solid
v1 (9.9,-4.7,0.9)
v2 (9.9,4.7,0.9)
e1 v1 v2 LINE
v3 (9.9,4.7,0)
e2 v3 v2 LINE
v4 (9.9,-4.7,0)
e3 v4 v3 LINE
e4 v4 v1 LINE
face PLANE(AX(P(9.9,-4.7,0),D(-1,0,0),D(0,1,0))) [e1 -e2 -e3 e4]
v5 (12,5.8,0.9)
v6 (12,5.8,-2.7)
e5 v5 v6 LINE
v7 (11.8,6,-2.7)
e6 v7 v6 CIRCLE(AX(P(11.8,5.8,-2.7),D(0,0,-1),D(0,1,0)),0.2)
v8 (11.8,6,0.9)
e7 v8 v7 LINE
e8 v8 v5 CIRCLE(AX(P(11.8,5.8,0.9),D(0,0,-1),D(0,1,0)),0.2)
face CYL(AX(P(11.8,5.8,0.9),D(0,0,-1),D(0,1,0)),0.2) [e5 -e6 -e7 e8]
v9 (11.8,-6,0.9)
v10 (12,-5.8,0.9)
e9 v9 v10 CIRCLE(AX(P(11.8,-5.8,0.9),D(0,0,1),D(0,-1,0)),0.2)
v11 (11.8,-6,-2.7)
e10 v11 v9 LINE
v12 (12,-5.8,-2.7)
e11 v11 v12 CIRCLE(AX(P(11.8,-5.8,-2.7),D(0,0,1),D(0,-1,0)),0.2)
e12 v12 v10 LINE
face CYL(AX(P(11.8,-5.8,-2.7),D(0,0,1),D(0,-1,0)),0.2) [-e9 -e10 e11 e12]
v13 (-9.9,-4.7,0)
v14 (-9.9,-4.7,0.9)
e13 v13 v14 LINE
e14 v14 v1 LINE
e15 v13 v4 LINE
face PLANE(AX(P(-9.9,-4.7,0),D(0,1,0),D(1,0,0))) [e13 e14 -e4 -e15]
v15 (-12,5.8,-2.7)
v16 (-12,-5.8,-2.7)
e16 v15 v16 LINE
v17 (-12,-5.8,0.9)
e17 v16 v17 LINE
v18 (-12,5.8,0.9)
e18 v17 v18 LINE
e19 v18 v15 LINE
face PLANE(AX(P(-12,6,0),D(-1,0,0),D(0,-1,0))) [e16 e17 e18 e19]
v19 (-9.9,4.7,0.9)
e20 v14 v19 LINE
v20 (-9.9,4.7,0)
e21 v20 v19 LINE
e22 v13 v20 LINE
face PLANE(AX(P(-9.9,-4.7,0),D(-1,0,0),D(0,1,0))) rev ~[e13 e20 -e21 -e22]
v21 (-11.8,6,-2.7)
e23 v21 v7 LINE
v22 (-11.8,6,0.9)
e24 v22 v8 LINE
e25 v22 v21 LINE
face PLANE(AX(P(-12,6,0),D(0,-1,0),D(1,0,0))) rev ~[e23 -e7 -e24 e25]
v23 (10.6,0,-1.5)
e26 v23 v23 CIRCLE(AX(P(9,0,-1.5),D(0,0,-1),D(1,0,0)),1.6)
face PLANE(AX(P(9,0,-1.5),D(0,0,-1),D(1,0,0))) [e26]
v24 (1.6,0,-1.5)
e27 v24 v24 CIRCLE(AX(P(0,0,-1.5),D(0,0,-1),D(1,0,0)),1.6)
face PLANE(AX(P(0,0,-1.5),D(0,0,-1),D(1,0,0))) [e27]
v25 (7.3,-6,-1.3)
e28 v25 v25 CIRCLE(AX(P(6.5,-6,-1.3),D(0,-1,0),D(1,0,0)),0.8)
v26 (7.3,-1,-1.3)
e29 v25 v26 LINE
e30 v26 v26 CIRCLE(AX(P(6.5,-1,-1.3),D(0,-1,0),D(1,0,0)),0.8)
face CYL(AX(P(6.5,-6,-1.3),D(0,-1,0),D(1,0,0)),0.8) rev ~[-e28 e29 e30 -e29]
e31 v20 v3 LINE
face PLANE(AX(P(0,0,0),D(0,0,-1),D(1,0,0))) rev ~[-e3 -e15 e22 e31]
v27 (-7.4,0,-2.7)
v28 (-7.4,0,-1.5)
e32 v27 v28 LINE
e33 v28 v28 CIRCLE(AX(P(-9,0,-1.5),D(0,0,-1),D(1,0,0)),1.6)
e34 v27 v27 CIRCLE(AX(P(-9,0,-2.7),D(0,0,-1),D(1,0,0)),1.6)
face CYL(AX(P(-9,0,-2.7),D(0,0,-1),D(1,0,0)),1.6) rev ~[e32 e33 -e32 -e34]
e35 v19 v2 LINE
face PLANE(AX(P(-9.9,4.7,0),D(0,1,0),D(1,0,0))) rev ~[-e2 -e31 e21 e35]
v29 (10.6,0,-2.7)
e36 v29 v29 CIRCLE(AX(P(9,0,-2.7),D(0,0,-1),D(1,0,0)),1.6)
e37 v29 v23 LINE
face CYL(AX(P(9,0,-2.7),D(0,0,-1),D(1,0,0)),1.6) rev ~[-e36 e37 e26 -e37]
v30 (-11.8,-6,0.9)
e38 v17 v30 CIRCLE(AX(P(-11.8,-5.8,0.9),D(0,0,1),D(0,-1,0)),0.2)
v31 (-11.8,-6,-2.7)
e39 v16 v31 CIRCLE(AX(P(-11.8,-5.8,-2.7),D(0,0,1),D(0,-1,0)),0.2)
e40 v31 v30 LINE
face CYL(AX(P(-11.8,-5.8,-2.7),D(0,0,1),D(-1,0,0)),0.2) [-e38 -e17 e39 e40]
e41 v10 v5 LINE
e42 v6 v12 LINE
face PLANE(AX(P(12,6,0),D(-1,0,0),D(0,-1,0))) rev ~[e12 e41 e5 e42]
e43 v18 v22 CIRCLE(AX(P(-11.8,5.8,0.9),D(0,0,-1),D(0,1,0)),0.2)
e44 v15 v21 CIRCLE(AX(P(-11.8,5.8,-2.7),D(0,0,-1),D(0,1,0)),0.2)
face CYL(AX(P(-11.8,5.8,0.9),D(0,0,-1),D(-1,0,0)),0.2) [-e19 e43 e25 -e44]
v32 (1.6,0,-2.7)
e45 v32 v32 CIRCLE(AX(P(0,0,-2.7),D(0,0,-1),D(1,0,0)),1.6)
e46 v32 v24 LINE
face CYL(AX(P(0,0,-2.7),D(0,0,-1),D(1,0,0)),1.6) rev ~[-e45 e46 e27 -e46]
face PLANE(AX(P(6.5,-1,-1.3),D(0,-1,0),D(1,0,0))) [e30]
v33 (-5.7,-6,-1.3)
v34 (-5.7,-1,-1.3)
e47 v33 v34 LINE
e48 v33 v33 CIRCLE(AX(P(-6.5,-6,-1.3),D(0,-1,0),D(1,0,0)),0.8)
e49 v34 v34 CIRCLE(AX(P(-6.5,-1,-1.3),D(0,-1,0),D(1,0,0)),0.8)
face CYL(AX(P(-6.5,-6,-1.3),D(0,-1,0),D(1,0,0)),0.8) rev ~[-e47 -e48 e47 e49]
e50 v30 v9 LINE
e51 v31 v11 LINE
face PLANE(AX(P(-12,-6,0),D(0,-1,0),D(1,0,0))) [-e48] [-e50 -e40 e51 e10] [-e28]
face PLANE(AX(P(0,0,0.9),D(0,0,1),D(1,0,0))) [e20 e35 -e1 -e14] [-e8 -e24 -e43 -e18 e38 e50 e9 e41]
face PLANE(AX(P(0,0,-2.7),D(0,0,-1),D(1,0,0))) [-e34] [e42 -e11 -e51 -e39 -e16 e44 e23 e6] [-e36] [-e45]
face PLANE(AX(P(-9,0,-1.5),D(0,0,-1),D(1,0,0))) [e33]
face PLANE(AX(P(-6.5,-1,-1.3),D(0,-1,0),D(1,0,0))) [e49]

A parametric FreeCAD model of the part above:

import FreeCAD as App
import Part
import Sketcher
from FreeCAD import Vector


def edges_at(feature, points):
    """Names of the edges that pass closest to the given points."""
    edges = feature.Shape.Edges
    near = lambda p: min(range(len(edges)), key=lambda i: edges[i].distToShape(Part.Vertex(*p))[0])
    return sorted({f"Edge{near(p) + 1}" for p in points})

doc = App.newDocument("Part")
body = doc.addObject("PartDesign::Body", "Body")

# Sketch on XY plane
sketch1 = body.newObject("Sketcher::SketchObject", "Sketch")
sketch1.AttachmentSupport = (doc.getObject("XY_Plane"), [""])
sketch1.MapMode = "FlatFace"
sketch1.addGeometry([
    Part.LineSegment(Vector(-12, 6, 0), Vector(-12, -6, 0)),  # 0
    Part.LineSegment(Vector(-12, -6, 0), Vector(12, -6, 0)),  # 1
    Part.LineSegment(Vector(12, -6, 0), Vector(12, 6, 0)),  # 2
    Part.LineSegment(Vector(12, 6, 0), Vector(-12, 6, 0)),  # 3
    Part.LineSegment(Vector(10, -5, 0), Vector(-10, -5, 0)),  # 4
    Part.LineSegment(Vector(-10, -5, 0), Vector(-10, 5, 0)),  # 5
    Part.LineSegment(Vector(-10, 5, 0), Vector(10, 5, 0)),  # 6
    Part.LineSegment(Vector(10, 5, 0), Vector(10, -5, 0)),  # 7
], False)
sketch1.addConstraint([
    Sketcher.Constraint("Coincident", 0, 2, 1, 1),
    Sketcher.Constraint("Coincident", 1, 2, 2, 1),
    Sketcher.Constraint("Coincident", 2, 2, 3, 1),
    Sketcher.Constraint("Coincident", 3, 2, 0, 1),
    Sketcher.Constraint("Coincident", 4, 2, 5, 1),
    Sketcher.Constraint("Coincident", 5, 2, 6, 1),
    Sketcher.Constraint("Coincident", 6, 2, 7, 1),
    Sketcher.Constraint("Coincident", 7, 2, 4, 1),
    Sketcher.Constraint("Vertical", 0),
    Sketcher.Constraint("Horizontal", 1),
    Sketcher.Constraint("Vertical", 2),
    Sketcher.Constraint("Horizontal", 3),
    Sketcher.Constraint("Horizontal", 4),
    Sketcher.Constraint("Vertical", 5),
    Sketcher.Constraint("Horizontal", 6),
    Sketcher.Constraint("Vertical", 7),
    Sketcher.Constraint("Symmetric", 0, 2, 2, 2, -1, 1),
    Sketcher.Constraint("Symmetric", 4, 2, 6, 2, -1, 1),
    Sketcher.Constraint("DistanceX", 1, 1, 1, 2, 24.0),
    Sketcher.Constraint("DistanceY", 0, 2, 0, 1, 12.0),
    Sketcher.Constraint("DistanceX", 4, 2, 4, 1, 19.8),
    Sketcher.Constraint("DistanceY", 5, 1, 5, 2, 9.4),
])
pad1 = body.newObject("PartDesign::Pad", "Pad")
pad1.Profile = sketch1
pad1.Length = 0.9

# Sketch on XY plane
sketch2 = body.newObject("Sketcher::SketchObject", "Sketch001")
sketch2.AttachmentSupport = (doc.getObject("XY_Plane"), [""])
sketch2.MapMode = "FlatFace"
sketch2.addGeometry([
    Part.LineSegment(Vector(-12, -6, 0), Vector(-12, 6, 0)),
    Part.LineSegment(Vector(-12, 6, 0), Vector(12, 6, 0)),
    Part.LineSegment(Vector(12, 6, 0), Vector(12, -6, 0)),
    Part.LineSegment(Vector(12, -6, 0), Vector(-12, -6, 0)),
], False)
sketch2.addConstraint([
    Sketcher.Constraint("Coincident", 0, 2, 1, 1),
    Sketcher.Constraint("Coincident", 1, 2, 2, 1),
    Sketcher.Constraint("Coincident", 2, 2, 3, 1),
    Sketcher.Constraint("Coincident", 3, 2, 0, 1),
    Sketcher.Constraint("Vertical", 0),
    Sketcher.Constraint("Horizontal", 1),
    Sketcher.Constraint("Vertical", 2),
    Sketcher.Constraint("Horizontal", 3),
    Sketcher.Constraint("Symmetric", 0, 2, 2, 2, -1, 1),
    Sketcher.Constraint("DistanceX", 1, 1, 1, 2, 24.0),
    Sketcher.Constraint("DistanceY", 0, 1, 0, 2, 12.0),
])
pad2 = body.newObject("PartDesign::Pad", "Pad001")
pad2.Profile = sketch2
pad2.Length = 2.7
pad2.Reversed = True

# Sketch on XY plane
sketch3 = body.newObject("Sketcher::SketchObject", "Sketch002")
sketch3.AttachmentSupport = (doc.getObject("XY_Plane"), [""])
sketch3.MapMode = "FlatFace"
sketch3.AttachmentOffset = App.Placement(Vector(0, 0, -2.7), App.Rotation())
sketch3.addGeometry([
    Part.Circle(Vector(0, 0, 0), Vector(0, 0, 1), 1.6),
    Part.Circle(Vector(-9, 0, 0), Vector(0, 0, 1), 1.6),
    Part.Circle(Vector(9, 0, 0), Vector(0, 0, 1), 1.6),
], False)
sketch3.addConstraint([
    Sketcher.Constraint("Coincident", 0, 3, -1, 1),
    Sketcher.Constraint("Equal", 0, 1),
    Sketcher.Constraint("Equal", 1, 2),
    Sketcher.Constraint("Symmetric", 1, 3, 2, 3, -1, 1),
    Sketcher.Constraint("PointOnObject", 1, 3, -1),
    Sketcher.Constraint("Diameter", 0, 3.2),
    Sketcher.Constraint("DistanceX", 1, 3, -1, 1, 9.0),
])
pocket1 = body.newObject("PartDesign::Pocket", "Pocket")
pocket1.Profile = sketch3
pocket1.Length = 1.2
pocket1.Reversed = True
doc.recompute()

fillet = body.newObject("PartDesign::Fillet", "Fillet")
fillet.Base = (pocket1, edges_at(pocket1, [
    (-12, -6, -0.9),
    (-12, 6, -0.9),
    (12, 6, -0.9),
    (12, -6, -0.9),
]))
fillet.Radius = 0.2

# Sketch on XZ plane
sketch4 = body.newObject("Sketcher::SketchObject", "Sketch003")
sketch4.AttachmentSupport = (doc.getObject("XZ_Plane"), [""])
sketch4.MapMode = "FlatFace"
sketch4.AttachmentOffset = App.Placement(Vector(0, 0, 6), App.Rotation())
sketch4.addGeometry([
    Part.Circle(Vector(-6.5, -1.3, 0), Vector(0, 0, 1), 0.8),
    Part.Circle(Vector(6.5, -1.3, 0), Vector(0, 0, 1), 0.8),
], False)
sketch4.addConstraint([
    Sketcher.Constraint("Equal", 0, 1),
    Sketcher.Constraint("Symmetric", 0, 3, 1, 3, -2),
    Sketcher.Constraint("Diameter", 0, 1.6),
    Sketcher.Constraint("DistanceX", 0, 3, 1, 3, 13.0),
    Sketcher.Constraint("DistanceY", 0, 3, -1, 1, 1.3),
])
pocket2 = body.newObject("PartDesign::Pocket", "Pocket001")
pocket2.Profile = sketch4
pocket2.Length = 5

doc.recompute()
